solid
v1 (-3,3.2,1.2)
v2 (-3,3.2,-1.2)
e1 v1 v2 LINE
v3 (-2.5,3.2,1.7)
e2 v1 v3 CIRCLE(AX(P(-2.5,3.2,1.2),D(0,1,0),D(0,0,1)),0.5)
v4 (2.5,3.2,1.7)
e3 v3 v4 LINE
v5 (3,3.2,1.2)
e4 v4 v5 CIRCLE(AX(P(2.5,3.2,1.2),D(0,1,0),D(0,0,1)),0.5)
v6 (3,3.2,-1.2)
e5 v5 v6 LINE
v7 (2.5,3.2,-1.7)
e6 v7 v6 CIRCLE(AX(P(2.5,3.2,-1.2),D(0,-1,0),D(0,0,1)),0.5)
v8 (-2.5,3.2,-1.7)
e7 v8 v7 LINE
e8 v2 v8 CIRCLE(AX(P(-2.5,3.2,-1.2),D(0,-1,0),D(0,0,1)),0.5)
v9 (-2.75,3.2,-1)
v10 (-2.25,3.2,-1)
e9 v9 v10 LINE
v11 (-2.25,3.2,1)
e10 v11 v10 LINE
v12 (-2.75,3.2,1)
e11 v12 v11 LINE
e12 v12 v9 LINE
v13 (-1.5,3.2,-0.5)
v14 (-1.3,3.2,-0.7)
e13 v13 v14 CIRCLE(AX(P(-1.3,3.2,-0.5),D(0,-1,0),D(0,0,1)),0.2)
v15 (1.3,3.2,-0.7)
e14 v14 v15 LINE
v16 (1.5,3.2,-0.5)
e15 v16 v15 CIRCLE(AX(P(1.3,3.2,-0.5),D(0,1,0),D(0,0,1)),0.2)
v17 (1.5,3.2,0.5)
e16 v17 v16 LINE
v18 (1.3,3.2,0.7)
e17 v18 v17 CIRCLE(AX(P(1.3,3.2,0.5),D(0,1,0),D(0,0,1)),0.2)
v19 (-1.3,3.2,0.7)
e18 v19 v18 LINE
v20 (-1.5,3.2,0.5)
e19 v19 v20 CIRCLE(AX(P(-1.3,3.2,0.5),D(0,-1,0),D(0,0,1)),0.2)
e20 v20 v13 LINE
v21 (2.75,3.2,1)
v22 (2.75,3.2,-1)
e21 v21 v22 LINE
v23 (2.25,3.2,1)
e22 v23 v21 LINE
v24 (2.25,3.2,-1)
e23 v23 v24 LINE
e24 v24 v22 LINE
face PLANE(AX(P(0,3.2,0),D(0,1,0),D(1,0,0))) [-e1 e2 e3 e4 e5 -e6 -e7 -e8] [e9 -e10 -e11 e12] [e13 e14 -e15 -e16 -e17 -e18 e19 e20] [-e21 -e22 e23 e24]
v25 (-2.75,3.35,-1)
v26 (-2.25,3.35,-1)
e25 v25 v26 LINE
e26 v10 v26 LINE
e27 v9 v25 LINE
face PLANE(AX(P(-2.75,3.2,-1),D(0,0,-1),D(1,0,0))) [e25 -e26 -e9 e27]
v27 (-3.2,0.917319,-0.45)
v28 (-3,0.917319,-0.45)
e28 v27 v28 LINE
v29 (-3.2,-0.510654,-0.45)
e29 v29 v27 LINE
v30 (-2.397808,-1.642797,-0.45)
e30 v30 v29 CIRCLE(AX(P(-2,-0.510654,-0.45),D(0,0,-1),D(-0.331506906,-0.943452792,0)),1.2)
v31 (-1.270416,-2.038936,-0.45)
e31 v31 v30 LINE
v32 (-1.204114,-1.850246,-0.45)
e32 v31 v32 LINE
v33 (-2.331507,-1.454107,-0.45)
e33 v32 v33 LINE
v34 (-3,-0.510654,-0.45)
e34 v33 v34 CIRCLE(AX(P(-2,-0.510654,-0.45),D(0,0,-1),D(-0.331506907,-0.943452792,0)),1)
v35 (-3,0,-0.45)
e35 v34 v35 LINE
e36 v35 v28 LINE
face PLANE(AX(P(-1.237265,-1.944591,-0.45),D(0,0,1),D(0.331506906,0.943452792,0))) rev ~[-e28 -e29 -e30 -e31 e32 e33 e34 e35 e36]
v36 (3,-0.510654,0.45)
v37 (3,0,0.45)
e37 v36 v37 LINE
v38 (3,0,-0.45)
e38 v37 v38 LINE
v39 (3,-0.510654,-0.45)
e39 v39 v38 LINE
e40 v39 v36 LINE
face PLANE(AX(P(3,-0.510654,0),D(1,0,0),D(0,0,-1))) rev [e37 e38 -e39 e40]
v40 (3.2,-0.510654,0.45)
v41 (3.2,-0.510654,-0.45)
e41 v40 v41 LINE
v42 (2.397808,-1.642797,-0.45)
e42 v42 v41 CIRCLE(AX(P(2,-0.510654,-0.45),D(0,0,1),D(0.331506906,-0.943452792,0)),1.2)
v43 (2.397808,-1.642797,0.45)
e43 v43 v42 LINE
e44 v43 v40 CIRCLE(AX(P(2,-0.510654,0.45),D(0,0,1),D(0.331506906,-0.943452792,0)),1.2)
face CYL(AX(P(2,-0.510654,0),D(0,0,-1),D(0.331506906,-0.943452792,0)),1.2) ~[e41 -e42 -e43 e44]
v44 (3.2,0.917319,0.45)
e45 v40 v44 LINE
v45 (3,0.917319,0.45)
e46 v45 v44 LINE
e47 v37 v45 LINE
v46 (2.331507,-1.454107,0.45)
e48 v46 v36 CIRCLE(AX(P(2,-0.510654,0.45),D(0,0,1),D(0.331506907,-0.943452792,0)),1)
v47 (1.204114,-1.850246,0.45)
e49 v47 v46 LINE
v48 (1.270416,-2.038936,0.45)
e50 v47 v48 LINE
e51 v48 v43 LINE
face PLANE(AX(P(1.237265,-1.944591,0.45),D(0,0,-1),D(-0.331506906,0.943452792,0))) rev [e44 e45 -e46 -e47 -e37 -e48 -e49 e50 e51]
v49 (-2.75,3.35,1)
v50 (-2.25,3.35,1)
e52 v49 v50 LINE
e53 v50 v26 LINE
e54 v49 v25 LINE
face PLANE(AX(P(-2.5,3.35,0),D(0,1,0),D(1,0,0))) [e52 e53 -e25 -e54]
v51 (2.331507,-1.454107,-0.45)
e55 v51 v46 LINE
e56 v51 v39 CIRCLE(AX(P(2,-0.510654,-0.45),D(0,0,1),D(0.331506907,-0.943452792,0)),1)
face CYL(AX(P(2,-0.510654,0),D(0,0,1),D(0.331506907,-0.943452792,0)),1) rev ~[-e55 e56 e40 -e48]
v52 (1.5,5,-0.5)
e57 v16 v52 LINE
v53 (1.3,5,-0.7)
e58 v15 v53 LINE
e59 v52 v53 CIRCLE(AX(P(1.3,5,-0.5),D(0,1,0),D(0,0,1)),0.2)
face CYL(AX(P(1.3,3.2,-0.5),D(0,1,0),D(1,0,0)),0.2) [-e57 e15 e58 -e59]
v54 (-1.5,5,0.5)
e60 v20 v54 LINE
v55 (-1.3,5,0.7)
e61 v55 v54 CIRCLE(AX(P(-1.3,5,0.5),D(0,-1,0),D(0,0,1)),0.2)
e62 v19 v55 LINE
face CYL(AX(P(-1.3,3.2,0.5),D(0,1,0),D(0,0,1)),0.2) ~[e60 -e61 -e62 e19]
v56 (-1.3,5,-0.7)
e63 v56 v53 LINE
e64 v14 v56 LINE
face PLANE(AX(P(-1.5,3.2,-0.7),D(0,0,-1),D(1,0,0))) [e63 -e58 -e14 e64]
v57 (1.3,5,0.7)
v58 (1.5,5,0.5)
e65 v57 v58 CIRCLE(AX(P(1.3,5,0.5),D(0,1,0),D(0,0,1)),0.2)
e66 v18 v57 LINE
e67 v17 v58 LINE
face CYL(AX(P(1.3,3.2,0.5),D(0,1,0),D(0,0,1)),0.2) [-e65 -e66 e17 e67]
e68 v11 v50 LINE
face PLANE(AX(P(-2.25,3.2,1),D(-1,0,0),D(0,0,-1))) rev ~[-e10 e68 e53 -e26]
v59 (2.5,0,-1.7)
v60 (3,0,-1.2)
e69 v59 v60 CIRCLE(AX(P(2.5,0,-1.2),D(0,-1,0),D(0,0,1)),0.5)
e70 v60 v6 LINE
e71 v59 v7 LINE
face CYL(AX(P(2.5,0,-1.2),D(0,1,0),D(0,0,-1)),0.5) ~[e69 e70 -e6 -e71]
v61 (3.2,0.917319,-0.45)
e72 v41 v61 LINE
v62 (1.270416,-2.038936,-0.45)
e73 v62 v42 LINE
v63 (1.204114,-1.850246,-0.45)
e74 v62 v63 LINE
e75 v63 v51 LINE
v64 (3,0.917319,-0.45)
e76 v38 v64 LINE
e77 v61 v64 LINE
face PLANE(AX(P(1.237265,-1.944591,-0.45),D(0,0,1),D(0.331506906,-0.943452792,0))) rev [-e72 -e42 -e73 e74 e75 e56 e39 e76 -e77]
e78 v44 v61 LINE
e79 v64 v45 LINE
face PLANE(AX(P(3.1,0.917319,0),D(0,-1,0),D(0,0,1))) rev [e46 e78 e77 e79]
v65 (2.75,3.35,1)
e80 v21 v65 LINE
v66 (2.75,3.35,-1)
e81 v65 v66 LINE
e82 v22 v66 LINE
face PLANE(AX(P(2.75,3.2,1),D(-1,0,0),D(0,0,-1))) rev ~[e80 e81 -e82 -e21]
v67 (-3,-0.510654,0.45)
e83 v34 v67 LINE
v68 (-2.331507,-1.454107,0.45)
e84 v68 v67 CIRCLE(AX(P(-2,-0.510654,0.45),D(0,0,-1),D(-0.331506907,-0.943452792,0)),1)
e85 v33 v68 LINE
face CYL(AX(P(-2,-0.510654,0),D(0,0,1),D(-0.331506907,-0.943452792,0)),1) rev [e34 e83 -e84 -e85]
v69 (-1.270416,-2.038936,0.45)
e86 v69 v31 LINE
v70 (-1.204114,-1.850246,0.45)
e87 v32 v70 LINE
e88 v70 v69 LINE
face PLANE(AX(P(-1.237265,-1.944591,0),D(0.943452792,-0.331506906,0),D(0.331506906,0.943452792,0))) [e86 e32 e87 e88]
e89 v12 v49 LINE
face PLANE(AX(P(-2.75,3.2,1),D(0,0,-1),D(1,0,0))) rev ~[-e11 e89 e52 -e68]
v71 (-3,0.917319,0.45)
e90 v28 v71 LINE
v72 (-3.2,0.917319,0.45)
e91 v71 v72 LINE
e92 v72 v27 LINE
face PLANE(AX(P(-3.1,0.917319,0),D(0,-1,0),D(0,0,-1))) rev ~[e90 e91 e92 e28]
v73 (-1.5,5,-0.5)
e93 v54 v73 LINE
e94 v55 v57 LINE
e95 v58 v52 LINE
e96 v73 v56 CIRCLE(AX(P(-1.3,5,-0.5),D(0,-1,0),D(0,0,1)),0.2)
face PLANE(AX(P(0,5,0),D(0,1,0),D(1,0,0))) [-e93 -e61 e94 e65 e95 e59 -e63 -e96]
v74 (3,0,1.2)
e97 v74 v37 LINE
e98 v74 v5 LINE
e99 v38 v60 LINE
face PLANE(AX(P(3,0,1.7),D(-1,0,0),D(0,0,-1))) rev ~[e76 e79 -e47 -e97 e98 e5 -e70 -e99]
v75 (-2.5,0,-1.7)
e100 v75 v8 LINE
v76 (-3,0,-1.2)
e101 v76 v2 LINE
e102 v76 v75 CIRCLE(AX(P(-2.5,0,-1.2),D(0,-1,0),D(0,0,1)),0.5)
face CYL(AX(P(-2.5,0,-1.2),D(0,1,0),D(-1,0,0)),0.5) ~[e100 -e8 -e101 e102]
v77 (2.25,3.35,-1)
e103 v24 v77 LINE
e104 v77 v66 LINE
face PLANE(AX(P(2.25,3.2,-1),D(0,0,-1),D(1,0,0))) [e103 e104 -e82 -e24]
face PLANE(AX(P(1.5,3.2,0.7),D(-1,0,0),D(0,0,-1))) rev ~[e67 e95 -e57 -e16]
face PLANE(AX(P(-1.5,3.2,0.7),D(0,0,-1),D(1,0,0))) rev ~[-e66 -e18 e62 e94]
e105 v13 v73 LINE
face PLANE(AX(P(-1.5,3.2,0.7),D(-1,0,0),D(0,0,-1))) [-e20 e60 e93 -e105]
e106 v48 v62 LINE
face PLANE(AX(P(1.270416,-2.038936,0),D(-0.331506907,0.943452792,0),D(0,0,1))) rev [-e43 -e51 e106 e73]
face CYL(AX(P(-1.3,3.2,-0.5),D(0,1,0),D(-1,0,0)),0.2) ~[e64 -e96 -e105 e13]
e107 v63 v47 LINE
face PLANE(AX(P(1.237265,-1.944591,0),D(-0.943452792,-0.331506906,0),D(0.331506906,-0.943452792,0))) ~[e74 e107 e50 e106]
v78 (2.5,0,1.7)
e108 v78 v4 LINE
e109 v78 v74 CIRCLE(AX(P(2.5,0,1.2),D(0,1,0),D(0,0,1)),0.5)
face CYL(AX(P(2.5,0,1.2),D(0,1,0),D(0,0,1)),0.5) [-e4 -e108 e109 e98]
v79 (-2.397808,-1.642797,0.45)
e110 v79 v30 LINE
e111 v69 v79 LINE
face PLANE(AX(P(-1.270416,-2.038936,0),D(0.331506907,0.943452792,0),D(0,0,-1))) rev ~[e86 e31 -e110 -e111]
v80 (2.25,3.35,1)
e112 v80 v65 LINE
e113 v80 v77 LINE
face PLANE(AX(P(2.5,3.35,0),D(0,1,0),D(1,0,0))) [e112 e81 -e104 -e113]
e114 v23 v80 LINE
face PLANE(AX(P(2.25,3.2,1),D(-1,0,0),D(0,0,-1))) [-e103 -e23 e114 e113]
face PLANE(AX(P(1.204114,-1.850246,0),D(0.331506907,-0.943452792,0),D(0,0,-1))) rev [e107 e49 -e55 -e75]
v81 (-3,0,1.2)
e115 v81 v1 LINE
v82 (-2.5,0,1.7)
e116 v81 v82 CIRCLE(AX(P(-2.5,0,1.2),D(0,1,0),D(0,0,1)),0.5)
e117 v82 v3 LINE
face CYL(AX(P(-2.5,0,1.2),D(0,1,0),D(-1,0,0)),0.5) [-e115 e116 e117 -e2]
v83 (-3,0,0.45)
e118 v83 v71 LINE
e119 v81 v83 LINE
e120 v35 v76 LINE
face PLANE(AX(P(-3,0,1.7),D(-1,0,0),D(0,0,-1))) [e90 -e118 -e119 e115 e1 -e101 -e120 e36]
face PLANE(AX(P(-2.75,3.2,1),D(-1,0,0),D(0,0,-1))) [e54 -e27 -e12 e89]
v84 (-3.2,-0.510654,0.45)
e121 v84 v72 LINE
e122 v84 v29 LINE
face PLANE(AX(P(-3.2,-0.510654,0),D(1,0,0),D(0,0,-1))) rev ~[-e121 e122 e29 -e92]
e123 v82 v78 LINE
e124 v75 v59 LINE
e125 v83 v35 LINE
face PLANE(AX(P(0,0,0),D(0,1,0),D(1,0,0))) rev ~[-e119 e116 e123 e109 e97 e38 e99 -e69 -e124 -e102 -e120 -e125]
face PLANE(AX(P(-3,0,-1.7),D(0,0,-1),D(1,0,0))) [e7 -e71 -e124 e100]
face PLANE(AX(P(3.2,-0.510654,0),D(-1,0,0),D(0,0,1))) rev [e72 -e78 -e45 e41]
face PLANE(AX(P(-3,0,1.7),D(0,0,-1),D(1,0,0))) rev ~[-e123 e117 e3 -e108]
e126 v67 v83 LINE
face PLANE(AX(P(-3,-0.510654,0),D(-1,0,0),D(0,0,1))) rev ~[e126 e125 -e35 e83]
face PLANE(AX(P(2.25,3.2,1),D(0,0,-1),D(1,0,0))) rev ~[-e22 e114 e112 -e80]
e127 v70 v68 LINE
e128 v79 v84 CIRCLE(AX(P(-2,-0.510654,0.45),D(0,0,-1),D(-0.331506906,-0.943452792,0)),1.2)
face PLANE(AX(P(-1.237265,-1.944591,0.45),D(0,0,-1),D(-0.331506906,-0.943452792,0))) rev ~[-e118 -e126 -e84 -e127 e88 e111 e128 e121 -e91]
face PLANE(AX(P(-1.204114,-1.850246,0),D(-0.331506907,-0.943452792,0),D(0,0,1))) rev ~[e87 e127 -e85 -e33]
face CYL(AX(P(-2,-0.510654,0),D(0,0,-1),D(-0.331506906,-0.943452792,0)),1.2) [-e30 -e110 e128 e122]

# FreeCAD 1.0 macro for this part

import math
import FreeCAD as App
import Part
import Sketcher

V = App.Vector
Q = App.Units.Quantity


def edges_at(feature, points):
    """Names of the edges that pass closest to the given points."""
    edges = feature.Shape.Edges
    near = lambda p: min(range(len(edges)), key=lambda i: edges[i].distToShape(Part.Vertex(*p))[0])
    return sorted({f"Edge{near(p) + 1}" for p in points})


def add_polygon(sketch, points):
    """Adds a closed chain of lines whose ends are joined by coincident constraints."""
    first, n = sketch.GeometryCount, len(points)
    for a, b in zip(points, points[1:] + points[:1]):
        sketch.addGeometry(Part.LineSegment(App.Vector(*a, 0), App.Vector(*b, 0)), False)
    for i in range(n):
        sketch.addConstraint(Sketcher.Constraint("Coincident", first + i, 2, first + (i + 1) % n, 1))

doc = App.newDocument("Part")
body = doc.addObject("PartDesign::Body", "Body")

# Sketch on XZ plane
sketch1 = doc.addObject("Sketcher::SketchObject", "Sketch")
body.addObject(sketch1)
sketch1.AttachmentSupport = (doc.XZ_Plane, [""])
sketch1.MapMode = "FlatFace"
add_polygon(sketch1, [(-3, -1.7), (-3, 1.7), (3, 1.7), (3, -1.7)])  # lines 0-3
sketch1.addConstraint(Sketcher.Constraint("Vertical", 0))
sketch1.addConstraint(Sketcher.Constraint("Horizontal", 1))
sketch1.addConstraint(Sketcher.Constraint("Vertical", 2))
sketch1.addConstraint(Sketcher.Constraint("Horizontal", 3))
sketch1.addConstraint(Sketcher.Constraint("Symmetric", 0, 2, 2, 2, -1, 1))
sketch1.addConstraint(Sketcher.Constraint("DistanceX", 1, 1, 1, 2, Q("6 mm")))
sketch1.addConstraint(Sketcher.Constraint("DistanceY", 0, 1, 0, 2, Q("3.4 mm")))
pad1 = doc.addObject("PartDesign::Pad", "Pad")
body.addObject(pad1)
pad1.Profile = sketch1
pad1.Length = 3.2
pad1.Reversed = True

# Sketch on XZ plane
sketch2 = doc.addObject("Sketcher::SketchObject", "Sketch001")
body.addObject(sketch2)
sketch2.AttachmentSupport = (doc.XZ_Plane, [""])
sketch2.MapMode = "FlatFace"
sketch2.AttachmentOffset = App.Placement(V(0, 0, -3.2), App.Rotation())
add_polygon(sketch2, [(-1.5, -0.7), (-1.5, 0.7), (1.5, 0.7), (1.5, -0.7)])  # lines 0-3
sketch2.addConstraint(Sketcher.Constraint("Vertical", 0))
sketch2.addConstraint(Sketcher.Constraint("Horizontal", 1))
sketch2.addConstraint(Sketcher.Constraint("Vertical", 2))
sketch2.addConstraint(Sketcher.Constraint("Horizontal", 3))
sketch2.addConstraint(Sketcher.Constraint("Symmetric", 0, 2, 2, 2, -1, 1))
sketch2.addConstraint(Sketcher.Constraint("DistanceX", 1, 1, 1, 2, Q("3 mm")))
sketch2.addConstraint(Sketcher.Constraint("DistanceY", 0, 1, 0, 2, Q("1.4 mm")))
pad2 = doc.addObject("PartDesign::Pad", "Pad001")
body.addObject(pad2)
pad2.Profile = sketch2
pad2.Length = 1.8
pad2.Reversed = True

# Sketch on XZ plane
sketch3 = doc.addObject("Sketcher::SketchObject", "Sketch002")
body.addObject(sketch3)
sketch3.AttachmentSupport = (doc.XZ_Plane, [""])
sketch3.MapMode = "FlatFace"
sketch3.AttachmentOffset = App.Placement(V(0, 0, -3.2), App.Rotation())
add_polygon(sketch3, [(-2.75, -1), (-2.75, 1), (-2.25, 1), (-2.25, -1)])  # lines 0-3
add_polygon(sketch3, [(2.25, -1), (2.25, 1), (2.75, 1), (2.75, -1)])  # lines 4-7
sketch3.addConstraint(Sketcher.Constraint("Vertical", 0))
sketch3.addConstraint(Sketcher.Constraint("Horizontal", 1))
sketch3.addConstraint(Sketcher.Constraint("Vertical", 2))
sketch3.addConstraint(Sketcher.Constraint("Horizontal", 3))
sketch3.addConstraint(Sketcher.Constraint("Vertical", 4))
sketch3.addConstraint(Sketcher.Constraint("Horizontal", 5))
sketch3.addConstraint(Sketcher.Constraint("Vertical", 6))
sketch3.addConstraint(Sketcher.Constraint("Horizontal", 7))
sketch3.addConstraint(Sketcher.Constraint("Symmetric", 2, 2, 4, 2, -1, 1))
sketch3.addConstraint(Sketcher.Constraint("Symmetric", 0, 2, 6, 2, -1, 1))
sketch3.addConstraint(Sketcher.Constraint("Horizontal", 1, 2, 4, 2))
sketch3.addConstraint(Sketcher.Constraint("DistanceY", 0, 1, 0, 2, Q("2 mm")))
sketch3.addConstraint(Sketcher.Constraint("DistanceX", 1, 1, 1, 2, Q("0.5 mm")))
sketch3.addConstraint(Sketcher.Constraint("DistanceX", 0, 2, 4, 2, Q("5 mm")))
pad3 = doc.addObject("PartDesign::Pad", "Pad002")
body.addObject(pad3)
pad3.Profile = sketch3
pad3.Length = 0.15
pad3.Reversed = True
doc.recompute()

fillet = doc.addObject("PartDesign::Fillet", "Fillet")
body.addObject(fillet)
fillet.Base = (pad3, edges_at(pad3, [
    (-1.5, 4.1, -0.7),
    (-1.5, 4.1, 0.7),
    (1.5, 4.1, 0.7),
    (1.5, 4.1, -0.7),
]))
fillet.Radius = 0.2
doc.recompute()

fillet2 = doc.addObject("PartDesign::Fillet", "Fillet001")
body.addObject(fillet2)
fillet2.Base = (fillet, edges_at(fillet, [
    (-3, 1.6, -1.7),
    (3, 1.6, -1.7),
    (3, 1.6, 1.7),
    (-3, 1.6, 1.7),
]))
fillet2.Radius = 0.5

# Sketch on XZ plane
sketch4 = doc.addObject("Sketcher::SketchObject", "Sketch003")
body.addObject(sketch4)
sketch4.AttachmentSupport = (doc.XZ_Plane, [""])
sketch4.MapMode = "FlatFace"
add_polygon(sketch4, [(-3.2, 0.45), (-3.2, -0.45), (-3, -0.45), (-3, 0.45)])  # lines 0-3
sketch4.addConstraint(Sketcher.Constraint("Vertical", 0))
sketch4.addConstraint(Sketcher.Constraint("Horizontal", 1))
sketch4.addConstraint(Sketcher.Constraint("Vertical", 2))
sketch4.addConstraint(Sketcher.Constraint("Horizontal", 3))
sketch4.addConstraint(Sketcher.Constraint("DistanceX", 1, 1, 1, 2, Q("0.2 mm")))
sketch4.addConstraint(Sketcher.Constraint("DistanceY", 0, 2, 0, 1, Q("0.9 mm")))
sketch4.addConstraint(Sketcher.Constraint("DistanceX", 1, 2, -1, 1, Q("3 mm")))
sketch4.addConstraint(Sketcher.Constraint("DistanceY", 0, 2, -1, 1, Q("0.45 mm")))

# Sketch on XY plane
sketch5 = doc.addObject("Sketcher::SketchObject", "Sketch004")
body.addObject(sketch5)
sketch5.AttachmentSupport = (doc.XY_Plane, [""])
sketch5.MapMode = "FlatFace"
sketch5.addGeometry(Part.LineSegment(V(-1.204114, -1.850246, 0), V(-2.331507, -1.454107, 0)), False)
sketch5.addGeometry(Part.ArcOfCircle(Part.Circle(V(-2, -0.510654, 0), V(0, 0, 1), 1), math.radians(180), math.radians(250.639736)), False)
sketch5.addGeometry(Part.LineSegment(V(-3, -0.510654, 0), V(-3, 0.917319, 0)), False)
sketch5.addConstraint(Sketcher.Constraint("Tangent", 0, 2, 1, 2))
sketch5.addConstraint(Sketcher.Constraint("Tangent", 1, 1, 2, 1))
sketch5.addConstraint(Sketcher.Constraint("Vertical", 2))
sketch5.addConstraint(Sketcher.Constraint("Radius", 1, Q("1 mm")))
sketch5.addConstraint(Sketcher.Constraint("DistanceX", 1, 3, -1, 1, Q("2 mm")))
sketch5.addConstraint(Sketcher.Constraint("DistanceY", 2, 1, 2, 2, Q("1.427973 mm")))
sketch5.addConstraint(Sketcher.Constraint("DistanceY", -1, 1, 2, 2, Q("0.917319 mm")))
sketch5.addConstraint(Sketcher.Constraint("DistanceY", 0, 1, 1, 3, Q("1.339592 mm")))
sketch5.addConstraint(Sketcher.Constraint("DistanceY", 0, 1, 0, 2, Q("0.396139 mm")))
doc.recompute()

additivepipe = doc.addObject("PartDesign::AdditivePipe", "AdditivePipe")
body.addObject(additivepipe)
additivepipe.Profile = sketch4
additivepipe.Spine = (sketch5, ["Edge1", "Edge2", "Edge3"])
doc.recompute()

mirrored = doc.addObject("PartDesign::Mirrored", "Mirrored")
body.addObject(mirrored)
mirrored.Originals = [additivepipe]
mirrored.MirrorPlane = (doc.YZ_Plane, [""])
body.Tip = mirrored

doc.recompute()
